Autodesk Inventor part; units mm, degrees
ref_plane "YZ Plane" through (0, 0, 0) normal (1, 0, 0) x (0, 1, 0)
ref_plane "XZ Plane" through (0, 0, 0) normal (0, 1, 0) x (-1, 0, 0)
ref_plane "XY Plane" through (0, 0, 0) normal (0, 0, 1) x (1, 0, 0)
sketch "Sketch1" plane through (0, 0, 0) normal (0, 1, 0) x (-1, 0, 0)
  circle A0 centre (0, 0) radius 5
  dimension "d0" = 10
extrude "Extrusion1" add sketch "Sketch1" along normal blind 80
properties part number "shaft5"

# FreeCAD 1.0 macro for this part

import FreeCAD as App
import Part
import Sketcher

doc = App.newDocument("Part")
body = doc.addObject("PartDesign::Body", "Body")

sketch1 = doc.addObject("Sketcher::SketchObject", "Sketch")
body.addObject(sketch1)
sketch1.AttachmentSupport = (doc.XZ_Plane, [""])
sketch1.MapMode = "FlatFace"
sketch1.addGeometry(Part.Circle(App.Vector(0, 0, 0), App.Vector(0, 0, 1), 5), False)
sketch1.addConstraint([
    Sketcher.Constraint("Coincident", 0, 3, -1, 1),
    Sketcher.Constraint("Diameter", 0, 10.0),
])
pad1 = doc.addObject("PartDesign::Pad", "Pad")
body.addObject(pad1)
pad1.Profile = sketch1
pad1.Length = 80
pad1.Reversed = True

doc.recompute()
